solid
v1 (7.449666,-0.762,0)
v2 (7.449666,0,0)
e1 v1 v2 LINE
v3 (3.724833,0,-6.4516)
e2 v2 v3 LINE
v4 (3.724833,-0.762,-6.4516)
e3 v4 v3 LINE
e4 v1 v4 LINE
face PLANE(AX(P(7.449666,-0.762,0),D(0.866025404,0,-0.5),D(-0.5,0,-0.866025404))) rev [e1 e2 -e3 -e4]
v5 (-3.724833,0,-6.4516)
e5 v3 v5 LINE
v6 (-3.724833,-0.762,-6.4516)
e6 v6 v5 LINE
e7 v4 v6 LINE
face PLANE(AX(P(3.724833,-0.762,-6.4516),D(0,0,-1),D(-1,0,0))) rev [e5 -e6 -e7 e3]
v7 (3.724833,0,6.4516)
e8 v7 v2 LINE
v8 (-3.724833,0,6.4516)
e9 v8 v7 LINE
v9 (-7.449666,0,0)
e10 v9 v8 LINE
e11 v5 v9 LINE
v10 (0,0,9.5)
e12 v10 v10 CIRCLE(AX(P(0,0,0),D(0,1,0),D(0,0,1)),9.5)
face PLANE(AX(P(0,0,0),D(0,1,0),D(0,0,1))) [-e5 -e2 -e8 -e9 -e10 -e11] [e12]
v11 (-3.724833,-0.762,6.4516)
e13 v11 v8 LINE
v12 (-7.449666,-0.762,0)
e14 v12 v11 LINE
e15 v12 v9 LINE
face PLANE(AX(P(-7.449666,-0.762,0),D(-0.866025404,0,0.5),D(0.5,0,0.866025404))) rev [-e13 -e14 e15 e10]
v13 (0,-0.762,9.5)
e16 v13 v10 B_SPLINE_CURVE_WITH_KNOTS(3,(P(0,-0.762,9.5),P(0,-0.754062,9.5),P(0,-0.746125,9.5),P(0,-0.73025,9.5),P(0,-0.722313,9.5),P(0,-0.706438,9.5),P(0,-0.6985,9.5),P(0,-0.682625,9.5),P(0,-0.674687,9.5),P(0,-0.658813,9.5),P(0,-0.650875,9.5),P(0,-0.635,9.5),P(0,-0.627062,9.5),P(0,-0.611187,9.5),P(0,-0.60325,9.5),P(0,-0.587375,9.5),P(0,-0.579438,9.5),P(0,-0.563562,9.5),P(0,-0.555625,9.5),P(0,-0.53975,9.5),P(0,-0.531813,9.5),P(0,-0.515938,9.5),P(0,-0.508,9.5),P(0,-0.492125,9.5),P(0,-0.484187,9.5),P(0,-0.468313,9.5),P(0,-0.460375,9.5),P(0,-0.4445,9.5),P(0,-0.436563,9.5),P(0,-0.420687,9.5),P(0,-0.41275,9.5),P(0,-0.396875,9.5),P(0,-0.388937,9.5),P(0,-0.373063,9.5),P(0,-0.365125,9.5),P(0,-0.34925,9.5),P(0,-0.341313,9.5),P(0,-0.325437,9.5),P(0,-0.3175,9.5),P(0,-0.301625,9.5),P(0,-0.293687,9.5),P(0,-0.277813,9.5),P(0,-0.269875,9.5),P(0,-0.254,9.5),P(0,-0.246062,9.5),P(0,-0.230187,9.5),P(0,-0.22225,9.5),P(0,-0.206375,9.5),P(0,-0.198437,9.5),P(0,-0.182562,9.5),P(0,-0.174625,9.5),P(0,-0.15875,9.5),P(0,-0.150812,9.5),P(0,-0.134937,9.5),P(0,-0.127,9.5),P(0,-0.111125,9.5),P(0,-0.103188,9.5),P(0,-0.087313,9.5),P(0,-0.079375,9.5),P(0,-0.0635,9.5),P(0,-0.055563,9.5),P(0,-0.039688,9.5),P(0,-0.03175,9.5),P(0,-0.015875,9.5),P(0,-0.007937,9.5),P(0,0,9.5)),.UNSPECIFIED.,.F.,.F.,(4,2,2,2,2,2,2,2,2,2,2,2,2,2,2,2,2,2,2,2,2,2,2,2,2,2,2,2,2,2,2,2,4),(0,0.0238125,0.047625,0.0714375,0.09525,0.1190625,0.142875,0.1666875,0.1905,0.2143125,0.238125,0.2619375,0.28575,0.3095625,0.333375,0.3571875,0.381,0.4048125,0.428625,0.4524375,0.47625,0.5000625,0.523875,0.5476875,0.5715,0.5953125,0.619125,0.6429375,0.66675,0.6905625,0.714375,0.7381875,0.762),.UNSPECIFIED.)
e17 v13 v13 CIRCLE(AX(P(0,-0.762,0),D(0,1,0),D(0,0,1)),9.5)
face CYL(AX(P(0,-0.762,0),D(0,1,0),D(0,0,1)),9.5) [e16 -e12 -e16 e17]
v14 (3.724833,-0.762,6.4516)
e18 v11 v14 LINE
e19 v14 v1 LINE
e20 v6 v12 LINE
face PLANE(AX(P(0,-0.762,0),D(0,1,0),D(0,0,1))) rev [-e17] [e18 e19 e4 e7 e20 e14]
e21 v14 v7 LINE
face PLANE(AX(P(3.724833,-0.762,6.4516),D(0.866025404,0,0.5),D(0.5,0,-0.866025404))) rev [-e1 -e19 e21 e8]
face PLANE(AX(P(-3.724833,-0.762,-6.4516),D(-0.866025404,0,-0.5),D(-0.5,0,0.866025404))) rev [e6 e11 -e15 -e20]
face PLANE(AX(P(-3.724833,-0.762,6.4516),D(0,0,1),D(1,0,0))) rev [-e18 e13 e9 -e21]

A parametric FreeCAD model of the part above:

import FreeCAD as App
import Part
import Sketcher
from FreeCAD import Vector
Q = App.Units.Quantity


def add_polygon(sketch, points):
    """Adds a closed chain of lines whose ends are joined by coincident constraints."""
    first, n = sketch.GeometryCount, len(points)
    for a, b in zip(points, points[1:] + points[:1]):
        sketch.addGeometry(Part.LineSegment(App.Vector(*a, 0), App.Vector(*b, 0)), False)
    for i in range(n):
        sketch.addConstraint(Sketcher.Constraint("Coincident", first + i, 2, first + (i + 1) % n, 1))

doc = App.newDocument("Part")
body = doc.addObject("PartDesign::Body", "Body")

# Sketch on XZ plane
sketch1 = body.newObject("Sketcher::SketchObject", "Sketch")
sketch1.AttachmentSupport = (doc.getObject("XZ_Plane"), [""])
sketch1.MapMode = "FlatFace"
sketch1.addGeometry(Part.Circle(Vector(0, 0, 0), Vector(0, 0, 1), 10), False)  # 0
add_polygon(sketch1, [(4, -6), (7, 0), (4, 6), (-4, 6), (-7, 0), (-4, -6)])  # lines 1-6
sketch1.addConstraint(Sketcher.Constraint("Horizontal", 3))
sketch1.addConstraint(Sketcher.Constraint("Horizontal", 6))
sketch1.addConstraint(Sketcher.Constraint("Coincident", 0, 3, -1, 1))
sketch1.addConstraint(Sketcher.Constraint("Symmetric", 1, 2, 4, 2, -1, 1))
sketch1.addConstraint(Sketcher.Constraint("Symmetric", 2, 2, 5, 2, -1, 1))
sketch1.addConstraint(Sketcher.Constraint("PointOnObject", 1, 2, -1))
sketch1.addConstraint(Sketcher.Constraint("Parallel", 1, 4))
sketch1.addConstraint(Sketcher.Constraint("Vertical", 3, 2, 5, 2))
sketch1.addConstraint(Sketcher.Constraint("Diameter", 0, Q("19 mm")))
sketch1.addConstraint(Sketcher.Constraint("Angle", 1, Q("60 deg")))
sketch1.addConstraint(Sketcher.Constraint("DistanceY", -1, 1, 2, 2, Q("6.4516 mm")))
sketch1.addConstraint(Sketcher.Constraint("DistanceX", 3, 2, 1, 2, Q("11.174499 mm")))
pad1 = body.newObject("PartDesign::Pad", "Pad")
pad1.Profile = sketch1
pad1.Length = 0.762

doc.recompute()
